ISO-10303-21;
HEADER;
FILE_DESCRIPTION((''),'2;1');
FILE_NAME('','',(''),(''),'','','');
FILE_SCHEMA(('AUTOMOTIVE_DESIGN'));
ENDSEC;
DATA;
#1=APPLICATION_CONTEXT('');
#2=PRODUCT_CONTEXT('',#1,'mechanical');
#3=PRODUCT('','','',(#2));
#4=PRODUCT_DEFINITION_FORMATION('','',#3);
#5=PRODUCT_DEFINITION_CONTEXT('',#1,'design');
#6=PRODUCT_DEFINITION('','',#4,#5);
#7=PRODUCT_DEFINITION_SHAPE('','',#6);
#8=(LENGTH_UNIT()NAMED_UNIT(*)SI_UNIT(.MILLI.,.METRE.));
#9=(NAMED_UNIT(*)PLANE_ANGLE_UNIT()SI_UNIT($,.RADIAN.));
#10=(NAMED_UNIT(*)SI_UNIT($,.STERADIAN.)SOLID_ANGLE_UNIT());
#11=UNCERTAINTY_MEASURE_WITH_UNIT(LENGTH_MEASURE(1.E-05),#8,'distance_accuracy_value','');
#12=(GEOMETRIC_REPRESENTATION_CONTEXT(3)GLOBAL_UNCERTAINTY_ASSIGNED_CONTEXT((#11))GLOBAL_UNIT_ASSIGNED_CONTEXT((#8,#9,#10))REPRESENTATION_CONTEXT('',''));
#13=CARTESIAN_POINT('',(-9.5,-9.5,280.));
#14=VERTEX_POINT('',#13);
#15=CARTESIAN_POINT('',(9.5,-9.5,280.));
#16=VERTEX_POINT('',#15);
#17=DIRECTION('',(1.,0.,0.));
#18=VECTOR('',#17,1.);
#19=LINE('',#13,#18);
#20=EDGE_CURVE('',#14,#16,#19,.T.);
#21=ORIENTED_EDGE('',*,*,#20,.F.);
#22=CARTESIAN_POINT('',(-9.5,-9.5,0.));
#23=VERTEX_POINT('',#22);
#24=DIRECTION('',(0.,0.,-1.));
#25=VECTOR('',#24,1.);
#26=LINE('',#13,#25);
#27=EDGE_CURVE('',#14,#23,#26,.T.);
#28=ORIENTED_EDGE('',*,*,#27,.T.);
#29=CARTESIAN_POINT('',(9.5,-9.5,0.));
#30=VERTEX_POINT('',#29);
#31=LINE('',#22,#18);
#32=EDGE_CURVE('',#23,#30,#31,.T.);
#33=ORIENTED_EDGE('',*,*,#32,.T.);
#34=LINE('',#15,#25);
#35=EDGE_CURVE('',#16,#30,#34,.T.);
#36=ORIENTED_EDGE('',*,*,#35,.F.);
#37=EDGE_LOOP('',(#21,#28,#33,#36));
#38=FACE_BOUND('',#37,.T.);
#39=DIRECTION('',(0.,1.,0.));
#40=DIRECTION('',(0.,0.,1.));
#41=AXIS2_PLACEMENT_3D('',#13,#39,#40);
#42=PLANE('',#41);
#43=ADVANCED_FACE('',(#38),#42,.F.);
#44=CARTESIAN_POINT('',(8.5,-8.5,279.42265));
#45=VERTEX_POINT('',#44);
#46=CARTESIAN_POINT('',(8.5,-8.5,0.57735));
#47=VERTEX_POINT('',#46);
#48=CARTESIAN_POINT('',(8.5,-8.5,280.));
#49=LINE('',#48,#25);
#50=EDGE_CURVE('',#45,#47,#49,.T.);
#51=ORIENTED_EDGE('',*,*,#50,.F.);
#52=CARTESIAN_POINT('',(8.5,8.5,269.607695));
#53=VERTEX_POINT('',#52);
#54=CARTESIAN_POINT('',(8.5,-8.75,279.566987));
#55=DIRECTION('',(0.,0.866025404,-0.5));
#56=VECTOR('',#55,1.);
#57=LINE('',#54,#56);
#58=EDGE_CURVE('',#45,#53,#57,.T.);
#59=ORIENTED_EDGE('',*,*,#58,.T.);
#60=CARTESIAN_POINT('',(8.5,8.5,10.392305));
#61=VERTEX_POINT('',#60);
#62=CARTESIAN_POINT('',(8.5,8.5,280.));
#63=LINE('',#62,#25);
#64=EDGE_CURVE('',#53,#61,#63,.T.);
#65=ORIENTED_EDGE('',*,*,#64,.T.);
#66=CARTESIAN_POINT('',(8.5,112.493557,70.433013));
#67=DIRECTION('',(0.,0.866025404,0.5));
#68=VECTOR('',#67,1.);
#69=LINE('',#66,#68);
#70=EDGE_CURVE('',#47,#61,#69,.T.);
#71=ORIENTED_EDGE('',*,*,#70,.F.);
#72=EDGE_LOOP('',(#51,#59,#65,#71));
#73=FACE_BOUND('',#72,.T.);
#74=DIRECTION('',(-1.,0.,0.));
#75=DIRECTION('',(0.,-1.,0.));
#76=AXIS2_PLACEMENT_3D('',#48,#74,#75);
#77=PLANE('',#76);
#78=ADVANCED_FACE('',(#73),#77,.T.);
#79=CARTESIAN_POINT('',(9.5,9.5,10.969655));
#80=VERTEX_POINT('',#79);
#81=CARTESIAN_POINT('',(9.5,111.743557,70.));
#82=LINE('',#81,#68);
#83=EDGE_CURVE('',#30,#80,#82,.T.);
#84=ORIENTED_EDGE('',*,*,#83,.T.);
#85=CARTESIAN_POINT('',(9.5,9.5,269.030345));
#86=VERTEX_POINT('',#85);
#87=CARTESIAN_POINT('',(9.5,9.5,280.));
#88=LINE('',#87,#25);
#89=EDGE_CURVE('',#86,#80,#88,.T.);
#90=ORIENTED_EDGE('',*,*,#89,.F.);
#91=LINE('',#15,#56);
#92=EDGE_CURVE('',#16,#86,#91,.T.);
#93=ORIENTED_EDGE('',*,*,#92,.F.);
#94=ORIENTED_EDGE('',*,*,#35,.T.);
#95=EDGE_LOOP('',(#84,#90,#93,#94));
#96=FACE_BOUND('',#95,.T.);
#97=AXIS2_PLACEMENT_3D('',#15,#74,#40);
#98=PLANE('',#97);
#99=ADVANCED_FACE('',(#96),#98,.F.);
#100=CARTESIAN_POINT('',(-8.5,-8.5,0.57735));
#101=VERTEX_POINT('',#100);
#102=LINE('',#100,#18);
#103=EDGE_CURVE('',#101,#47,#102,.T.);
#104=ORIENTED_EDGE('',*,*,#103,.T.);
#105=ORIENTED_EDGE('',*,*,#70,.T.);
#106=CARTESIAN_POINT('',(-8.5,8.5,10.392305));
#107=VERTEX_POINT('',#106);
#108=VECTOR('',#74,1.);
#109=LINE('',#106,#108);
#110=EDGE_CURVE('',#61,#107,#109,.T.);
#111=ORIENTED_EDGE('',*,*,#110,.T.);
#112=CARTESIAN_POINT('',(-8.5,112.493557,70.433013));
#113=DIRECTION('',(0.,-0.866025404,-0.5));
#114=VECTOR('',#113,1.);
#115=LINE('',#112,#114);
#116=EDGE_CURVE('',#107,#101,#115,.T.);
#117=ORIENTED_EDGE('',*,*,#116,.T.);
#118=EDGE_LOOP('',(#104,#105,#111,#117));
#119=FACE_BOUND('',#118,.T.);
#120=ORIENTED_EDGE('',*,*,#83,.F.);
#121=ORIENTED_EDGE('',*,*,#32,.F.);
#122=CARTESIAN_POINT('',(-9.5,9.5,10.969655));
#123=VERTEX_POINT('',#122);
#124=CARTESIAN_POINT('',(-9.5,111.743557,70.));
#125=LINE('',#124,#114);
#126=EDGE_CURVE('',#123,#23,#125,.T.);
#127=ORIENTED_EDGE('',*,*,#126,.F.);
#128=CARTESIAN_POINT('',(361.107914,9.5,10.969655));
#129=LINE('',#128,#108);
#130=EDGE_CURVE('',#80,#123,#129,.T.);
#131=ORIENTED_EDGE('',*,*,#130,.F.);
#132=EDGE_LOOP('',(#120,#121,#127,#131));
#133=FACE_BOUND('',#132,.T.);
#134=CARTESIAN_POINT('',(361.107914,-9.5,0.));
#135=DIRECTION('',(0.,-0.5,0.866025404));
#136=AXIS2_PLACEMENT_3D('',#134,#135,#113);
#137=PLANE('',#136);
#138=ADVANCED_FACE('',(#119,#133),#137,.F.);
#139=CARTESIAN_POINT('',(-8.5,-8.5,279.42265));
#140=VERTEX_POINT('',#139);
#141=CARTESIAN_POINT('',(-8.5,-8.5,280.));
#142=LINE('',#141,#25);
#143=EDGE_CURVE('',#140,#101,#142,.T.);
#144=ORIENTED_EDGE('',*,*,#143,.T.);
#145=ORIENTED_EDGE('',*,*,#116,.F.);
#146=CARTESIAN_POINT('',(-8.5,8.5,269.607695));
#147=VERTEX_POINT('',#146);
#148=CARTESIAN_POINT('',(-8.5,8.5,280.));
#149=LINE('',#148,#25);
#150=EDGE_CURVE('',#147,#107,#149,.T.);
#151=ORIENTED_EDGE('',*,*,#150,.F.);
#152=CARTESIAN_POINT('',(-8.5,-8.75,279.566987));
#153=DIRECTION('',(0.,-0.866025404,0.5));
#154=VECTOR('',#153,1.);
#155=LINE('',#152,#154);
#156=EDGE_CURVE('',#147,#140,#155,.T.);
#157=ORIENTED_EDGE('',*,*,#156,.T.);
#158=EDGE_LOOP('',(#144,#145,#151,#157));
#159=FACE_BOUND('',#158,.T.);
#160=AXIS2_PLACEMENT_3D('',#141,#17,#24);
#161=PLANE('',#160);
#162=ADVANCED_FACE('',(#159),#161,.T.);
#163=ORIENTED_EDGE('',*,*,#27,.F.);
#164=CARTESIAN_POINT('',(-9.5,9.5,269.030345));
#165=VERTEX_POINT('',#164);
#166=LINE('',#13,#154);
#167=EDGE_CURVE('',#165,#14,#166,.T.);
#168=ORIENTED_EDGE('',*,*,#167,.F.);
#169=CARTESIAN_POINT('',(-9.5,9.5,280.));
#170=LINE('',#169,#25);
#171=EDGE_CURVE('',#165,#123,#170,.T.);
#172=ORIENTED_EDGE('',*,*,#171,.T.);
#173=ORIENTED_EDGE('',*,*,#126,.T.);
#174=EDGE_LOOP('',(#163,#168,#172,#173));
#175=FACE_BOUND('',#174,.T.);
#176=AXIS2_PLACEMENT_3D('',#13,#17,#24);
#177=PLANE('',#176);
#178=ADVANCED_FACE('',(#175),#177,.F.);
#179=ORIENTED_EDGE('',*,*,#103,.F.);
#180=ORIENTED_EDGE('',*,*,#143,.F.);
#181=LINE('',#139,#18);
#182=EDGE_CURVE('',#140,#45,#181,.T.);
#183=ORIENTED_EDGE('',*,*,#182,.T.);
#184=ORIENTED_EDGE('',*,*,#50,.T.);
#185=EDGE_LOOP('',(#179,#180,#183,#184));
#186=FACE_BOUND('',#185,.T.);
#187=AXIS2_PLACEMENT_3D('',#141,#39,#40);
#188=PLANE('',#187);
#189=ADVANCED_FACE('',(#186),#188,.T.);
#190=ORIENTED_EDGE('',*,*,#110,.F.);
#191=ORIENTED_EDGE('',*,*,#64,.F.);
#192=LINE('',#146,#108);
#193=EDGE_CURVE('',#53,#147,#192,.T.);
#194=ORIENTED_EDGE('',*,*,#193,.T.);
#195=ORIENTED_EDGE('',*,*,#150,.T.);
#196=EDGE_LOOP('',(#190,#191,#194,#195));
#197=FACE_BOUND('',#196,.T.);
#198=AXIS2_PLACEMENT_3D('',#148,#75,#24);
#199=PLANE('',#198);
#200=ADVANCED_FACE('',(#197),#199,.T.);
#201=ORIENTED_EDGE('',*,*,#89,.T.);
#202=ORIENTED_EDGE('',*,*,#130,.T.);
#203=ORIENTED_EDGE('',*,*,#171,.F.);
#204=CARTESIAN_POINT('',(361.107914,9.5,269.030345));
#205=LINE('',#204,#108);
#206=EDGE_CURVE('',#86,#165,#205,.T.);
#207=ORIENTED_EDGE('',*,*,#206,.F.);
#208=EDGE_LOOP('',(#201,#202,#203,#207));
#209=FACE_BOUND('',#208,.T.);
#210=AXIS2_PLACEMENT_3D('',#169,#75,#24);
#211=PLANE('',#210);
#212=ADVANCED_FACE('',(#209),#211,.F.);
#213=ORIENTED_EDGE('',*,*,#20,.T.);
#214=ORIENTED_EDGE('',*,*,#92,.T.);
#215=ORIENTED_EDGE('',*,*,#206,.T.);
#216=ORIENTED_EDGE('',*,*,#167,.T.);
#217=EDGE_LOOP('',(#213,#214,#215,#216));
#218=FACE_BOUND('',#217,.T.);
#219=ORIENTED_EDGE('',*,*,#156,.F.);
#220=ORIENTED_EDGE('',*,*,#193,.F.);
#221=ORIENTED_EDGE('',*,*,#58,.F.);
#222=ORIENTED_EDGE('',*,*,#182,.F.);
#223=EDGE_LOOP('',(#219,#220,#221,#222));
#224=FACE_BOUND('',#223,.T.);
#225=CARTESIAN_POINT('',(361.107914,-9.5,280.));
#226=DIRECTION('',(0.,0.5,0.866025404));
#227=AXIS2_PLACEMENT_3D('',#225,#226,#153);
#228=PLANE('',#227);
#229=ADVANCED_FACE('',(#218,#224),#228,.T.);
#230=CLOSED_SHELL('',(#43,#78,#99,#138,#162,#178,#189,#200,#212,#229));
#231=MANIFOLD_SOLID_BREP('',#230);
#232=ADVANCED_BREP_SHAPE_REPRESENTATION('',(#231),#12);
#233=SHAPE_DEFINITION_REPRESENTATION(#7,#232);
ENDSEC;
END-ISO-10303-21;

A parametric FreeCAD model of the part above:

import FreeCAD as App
import Part
import Sketcher

V = App.Vector
Q = App.Units.Quantity


def add_polygon(sketch, points):
    """Adds a closed chain of lines whose ends are joined by coincident constraints."""
    first, n = sketch.GeometryCount, len(points)
    for a, b in zip(points, points[1:] + points[:1]):
        sketch.addGeometry(Part.LineSegment(App.Vector(*a, 0), App.Vector(*b, 0)), False)
    for i in range(n):
        sketch.addConstraint(Sketcher.Constraint("Coincident", first + i, 2, first + (i + 1) % n, 1))

doc = App.newDocument("Part")
params = doc.addObject("Spreadsheet::Sheet", "Params")
for row, (alias, value) in enumerate([
    ("sketch1_width", "19 mm"),
    ("sketch1_width2", "17 mm"),
    ("pad1_length", "280 mm"),
], start=1):
    params.set(f"A{row}", alias)
    params.set(f"B{row}", "=" + value)
    params.setAlias(f"B{row}", alias)

body = doc.addObject("PartDesign::Body", "Body")

# Sketch on XY plane
sketch1 = body.newObject("Sketcher::SketchObject", "Sketch")
sketch1.AttachmentSupport = (doc.getObject("XY_Plane"), [""])
sketch1.MapMode = "FlatFace"
add_polygon(sketch1, [(-10, 10), (-10, -10), (10, -10), (10, 10)])  # lines 0-3
add_polygon(sketch1, [(8, -8), (-8, -8), (-8, 8), (8, 8)])  # lines 4-7
sketch1.addConstraint(Sketcher.Constraint("Vertical", 0))
sketch1.addConstraint(Sketcher.Constraint("Horizontal", 1))
sketch1.addConstraint(Sketcher.Constraint("Vertical", 2))
sketch1.addConstraint(Sketcher.Constraint("Horizontal", 3))
sketch1.addConstraint(Sketcher.Constraint("Horizontal", 4))
sketch1.addConstraint(Sketcher.Constraint("Vertical", 5))
sketch1.addConstraint(Sketcher.Constraint("Horizontal", 6))
sketch1.addConstraint(Sketcher.Constraint("Vertical", 7))
sketch1.addConstraint(Sketcher.Constraint("Symmetric", 0, 2, 2, 2, -1, 1))
sketch1.addConstraint(Sketcher.Constraint("Symmetric", 4, 2, 6, 2, -1, 1))
sketch1.addConstraint(Sketcher.Constraint("Equal", 3, 0))
sketch1.addConstraint(Sketcher.Constraint("Equal", 6, 5))
sketch1.addConstraint(Sketcher.Constraint("DistanceX", 1, 1, 1, 2, 19.0))
sketch1.addConstraint(Sketcher.Constraint("DistanceX", 4, 2, 4, 1, 17.0))
sketch1.setExpression("Constraints[20]", "Params.sketch1_width")
sketch1.setExpression("Constraints[21]", "Params.sketch1_width2")
pad1 = body.newObject("PartDesign::Pad", "Pad")
pad1.Profile = sketch1
pad1.setExpression("Length", "Params.pad1_length")

# Sketch on YZ plane
sketch2 = body.newObject("Sketcher::SketchObject", "Sketch001")
sketch2.AttachmentSupport = (doc.getObject("YZ_Plane"), [""])
sketch2.MapMode = "FlatFace"
sketch2.AttachmentOffset = App.Placement(V(0, 0, 9.5), App.Rotation())
add_polygon(sketch2, [(-504, 566), (-10, 280), (10, 269), (504, -17), (1076, 973), (67, 1555)])  # lines 0-5
sketch2.addConstraint(Sketcher.Constraint("Parallel", 0, 1))
sketch2.addConstraint(Sketcher.Constraint("Parallel", 1, 2))
sketch2.addConstraint(Sketcher.Constraint("Perpendicular", 2, 3))
sketch2.addConstraint(Sketcher.Constraint("Perpendicular", 3, 4))
sketch2.addConstraint(Sketcher.Constraint("Perpendicular", 4, 5))
sketch2.addConstraint(Sketcher.Constraint("Equal", 0, 2))
sketch2.addConstraint(Sketcher.Constraint("Angle", 0, Q("-30 deg")))
sketch2.addConstraint(Sketcher.Constraint("DistanceY", -1, 1, 0, 2, 280.0))
sketch2.addConstraint(Sketcher.Constraint("DistanceX", 0, 2, 1, 2, 19.0))
sketch2.addConstraint(Sketcher.Constraint("DistanceX", 0, 2, -1, 1, 9.5))
sketch2.addConstraint(Sketcher.Constraint("DistanceY", 1, 2, 3, 2, 703.855601))
sketch2.addConstraint(Sketcher.Constraint("DistanceX", 4, 2, 2, 2, 437.211699))
pocket1 = body.newObject("PartDesign::Pocket", "Pocket")
pocket1.Profile = sketch2
pocket1.Type = "ThroughAll"
pocket1.Midplane = True

# Sketch on YZ plane
sketch3 = body.newObject("Sketcher::SketchObject", "Sketch002")
sketch3.AttachmentSupport = (doc.getObject("YZ_Plane"), [""])
sketch3.MapMode = "FlatFace"
sketch3.AttachmentOffset = App.Placement(V(0, 0, 9.5), App.Rotation())
add_polygon(sketch3, [(-10, 0), (-504, -286), (67, -1275), (1076, -693), (504, 297), (10, 11)])  # lines 0-5
sketch3.addConstraint(Sketcher.Constraint("PointOnObject", 5, 2, -1))
sketch3.addConstraint(Sketcher.Constraint("Perpendicular", 0, 1))
sketch3.addConstraint(Sketcher.Constraint("Perpendicular", 1, 2))
sketch3.addConstraint(Sketcher.Constraint("Perpendicular", 2, 3))
sketch3.addConstraint(Sketcher.Constraint("Perpendicular", 3, 4))
sketch3.addConstraint(Sketcher.Constraint("Parallel", 4, 5))
sketch3.addConstraint(Sketcher.Constraint("Equal", 0, 4))
sketch3.addConstraint(Sketcher.Constraint("Angle", 0, Q("-150 deg")))
sketch3.addConstraint(Sketcher.Constraint("DistanceX", 5, 2, 4, 2, 19.0))
sketch3.addConstraint(Sketcher.Constraint("DistanceX", -1, 1, 4, 2, 9.5))
sketch3.addConstraint(Sketcher.Constraint("DistanceX", 1, 2, 3, 2, 437.211699))
sketch3.addConstraint(Sketcher.Constraint("DistanceY", 2, 2, 4, 2, 703.855601))
pocket2 = body.newObject("PartDesign::Pocket", "Pocket001")
pocket2.Profile = sketch3
pocket2.Type = "ThroughAll"
pocket2.Midplane = True

doc.recompute()
